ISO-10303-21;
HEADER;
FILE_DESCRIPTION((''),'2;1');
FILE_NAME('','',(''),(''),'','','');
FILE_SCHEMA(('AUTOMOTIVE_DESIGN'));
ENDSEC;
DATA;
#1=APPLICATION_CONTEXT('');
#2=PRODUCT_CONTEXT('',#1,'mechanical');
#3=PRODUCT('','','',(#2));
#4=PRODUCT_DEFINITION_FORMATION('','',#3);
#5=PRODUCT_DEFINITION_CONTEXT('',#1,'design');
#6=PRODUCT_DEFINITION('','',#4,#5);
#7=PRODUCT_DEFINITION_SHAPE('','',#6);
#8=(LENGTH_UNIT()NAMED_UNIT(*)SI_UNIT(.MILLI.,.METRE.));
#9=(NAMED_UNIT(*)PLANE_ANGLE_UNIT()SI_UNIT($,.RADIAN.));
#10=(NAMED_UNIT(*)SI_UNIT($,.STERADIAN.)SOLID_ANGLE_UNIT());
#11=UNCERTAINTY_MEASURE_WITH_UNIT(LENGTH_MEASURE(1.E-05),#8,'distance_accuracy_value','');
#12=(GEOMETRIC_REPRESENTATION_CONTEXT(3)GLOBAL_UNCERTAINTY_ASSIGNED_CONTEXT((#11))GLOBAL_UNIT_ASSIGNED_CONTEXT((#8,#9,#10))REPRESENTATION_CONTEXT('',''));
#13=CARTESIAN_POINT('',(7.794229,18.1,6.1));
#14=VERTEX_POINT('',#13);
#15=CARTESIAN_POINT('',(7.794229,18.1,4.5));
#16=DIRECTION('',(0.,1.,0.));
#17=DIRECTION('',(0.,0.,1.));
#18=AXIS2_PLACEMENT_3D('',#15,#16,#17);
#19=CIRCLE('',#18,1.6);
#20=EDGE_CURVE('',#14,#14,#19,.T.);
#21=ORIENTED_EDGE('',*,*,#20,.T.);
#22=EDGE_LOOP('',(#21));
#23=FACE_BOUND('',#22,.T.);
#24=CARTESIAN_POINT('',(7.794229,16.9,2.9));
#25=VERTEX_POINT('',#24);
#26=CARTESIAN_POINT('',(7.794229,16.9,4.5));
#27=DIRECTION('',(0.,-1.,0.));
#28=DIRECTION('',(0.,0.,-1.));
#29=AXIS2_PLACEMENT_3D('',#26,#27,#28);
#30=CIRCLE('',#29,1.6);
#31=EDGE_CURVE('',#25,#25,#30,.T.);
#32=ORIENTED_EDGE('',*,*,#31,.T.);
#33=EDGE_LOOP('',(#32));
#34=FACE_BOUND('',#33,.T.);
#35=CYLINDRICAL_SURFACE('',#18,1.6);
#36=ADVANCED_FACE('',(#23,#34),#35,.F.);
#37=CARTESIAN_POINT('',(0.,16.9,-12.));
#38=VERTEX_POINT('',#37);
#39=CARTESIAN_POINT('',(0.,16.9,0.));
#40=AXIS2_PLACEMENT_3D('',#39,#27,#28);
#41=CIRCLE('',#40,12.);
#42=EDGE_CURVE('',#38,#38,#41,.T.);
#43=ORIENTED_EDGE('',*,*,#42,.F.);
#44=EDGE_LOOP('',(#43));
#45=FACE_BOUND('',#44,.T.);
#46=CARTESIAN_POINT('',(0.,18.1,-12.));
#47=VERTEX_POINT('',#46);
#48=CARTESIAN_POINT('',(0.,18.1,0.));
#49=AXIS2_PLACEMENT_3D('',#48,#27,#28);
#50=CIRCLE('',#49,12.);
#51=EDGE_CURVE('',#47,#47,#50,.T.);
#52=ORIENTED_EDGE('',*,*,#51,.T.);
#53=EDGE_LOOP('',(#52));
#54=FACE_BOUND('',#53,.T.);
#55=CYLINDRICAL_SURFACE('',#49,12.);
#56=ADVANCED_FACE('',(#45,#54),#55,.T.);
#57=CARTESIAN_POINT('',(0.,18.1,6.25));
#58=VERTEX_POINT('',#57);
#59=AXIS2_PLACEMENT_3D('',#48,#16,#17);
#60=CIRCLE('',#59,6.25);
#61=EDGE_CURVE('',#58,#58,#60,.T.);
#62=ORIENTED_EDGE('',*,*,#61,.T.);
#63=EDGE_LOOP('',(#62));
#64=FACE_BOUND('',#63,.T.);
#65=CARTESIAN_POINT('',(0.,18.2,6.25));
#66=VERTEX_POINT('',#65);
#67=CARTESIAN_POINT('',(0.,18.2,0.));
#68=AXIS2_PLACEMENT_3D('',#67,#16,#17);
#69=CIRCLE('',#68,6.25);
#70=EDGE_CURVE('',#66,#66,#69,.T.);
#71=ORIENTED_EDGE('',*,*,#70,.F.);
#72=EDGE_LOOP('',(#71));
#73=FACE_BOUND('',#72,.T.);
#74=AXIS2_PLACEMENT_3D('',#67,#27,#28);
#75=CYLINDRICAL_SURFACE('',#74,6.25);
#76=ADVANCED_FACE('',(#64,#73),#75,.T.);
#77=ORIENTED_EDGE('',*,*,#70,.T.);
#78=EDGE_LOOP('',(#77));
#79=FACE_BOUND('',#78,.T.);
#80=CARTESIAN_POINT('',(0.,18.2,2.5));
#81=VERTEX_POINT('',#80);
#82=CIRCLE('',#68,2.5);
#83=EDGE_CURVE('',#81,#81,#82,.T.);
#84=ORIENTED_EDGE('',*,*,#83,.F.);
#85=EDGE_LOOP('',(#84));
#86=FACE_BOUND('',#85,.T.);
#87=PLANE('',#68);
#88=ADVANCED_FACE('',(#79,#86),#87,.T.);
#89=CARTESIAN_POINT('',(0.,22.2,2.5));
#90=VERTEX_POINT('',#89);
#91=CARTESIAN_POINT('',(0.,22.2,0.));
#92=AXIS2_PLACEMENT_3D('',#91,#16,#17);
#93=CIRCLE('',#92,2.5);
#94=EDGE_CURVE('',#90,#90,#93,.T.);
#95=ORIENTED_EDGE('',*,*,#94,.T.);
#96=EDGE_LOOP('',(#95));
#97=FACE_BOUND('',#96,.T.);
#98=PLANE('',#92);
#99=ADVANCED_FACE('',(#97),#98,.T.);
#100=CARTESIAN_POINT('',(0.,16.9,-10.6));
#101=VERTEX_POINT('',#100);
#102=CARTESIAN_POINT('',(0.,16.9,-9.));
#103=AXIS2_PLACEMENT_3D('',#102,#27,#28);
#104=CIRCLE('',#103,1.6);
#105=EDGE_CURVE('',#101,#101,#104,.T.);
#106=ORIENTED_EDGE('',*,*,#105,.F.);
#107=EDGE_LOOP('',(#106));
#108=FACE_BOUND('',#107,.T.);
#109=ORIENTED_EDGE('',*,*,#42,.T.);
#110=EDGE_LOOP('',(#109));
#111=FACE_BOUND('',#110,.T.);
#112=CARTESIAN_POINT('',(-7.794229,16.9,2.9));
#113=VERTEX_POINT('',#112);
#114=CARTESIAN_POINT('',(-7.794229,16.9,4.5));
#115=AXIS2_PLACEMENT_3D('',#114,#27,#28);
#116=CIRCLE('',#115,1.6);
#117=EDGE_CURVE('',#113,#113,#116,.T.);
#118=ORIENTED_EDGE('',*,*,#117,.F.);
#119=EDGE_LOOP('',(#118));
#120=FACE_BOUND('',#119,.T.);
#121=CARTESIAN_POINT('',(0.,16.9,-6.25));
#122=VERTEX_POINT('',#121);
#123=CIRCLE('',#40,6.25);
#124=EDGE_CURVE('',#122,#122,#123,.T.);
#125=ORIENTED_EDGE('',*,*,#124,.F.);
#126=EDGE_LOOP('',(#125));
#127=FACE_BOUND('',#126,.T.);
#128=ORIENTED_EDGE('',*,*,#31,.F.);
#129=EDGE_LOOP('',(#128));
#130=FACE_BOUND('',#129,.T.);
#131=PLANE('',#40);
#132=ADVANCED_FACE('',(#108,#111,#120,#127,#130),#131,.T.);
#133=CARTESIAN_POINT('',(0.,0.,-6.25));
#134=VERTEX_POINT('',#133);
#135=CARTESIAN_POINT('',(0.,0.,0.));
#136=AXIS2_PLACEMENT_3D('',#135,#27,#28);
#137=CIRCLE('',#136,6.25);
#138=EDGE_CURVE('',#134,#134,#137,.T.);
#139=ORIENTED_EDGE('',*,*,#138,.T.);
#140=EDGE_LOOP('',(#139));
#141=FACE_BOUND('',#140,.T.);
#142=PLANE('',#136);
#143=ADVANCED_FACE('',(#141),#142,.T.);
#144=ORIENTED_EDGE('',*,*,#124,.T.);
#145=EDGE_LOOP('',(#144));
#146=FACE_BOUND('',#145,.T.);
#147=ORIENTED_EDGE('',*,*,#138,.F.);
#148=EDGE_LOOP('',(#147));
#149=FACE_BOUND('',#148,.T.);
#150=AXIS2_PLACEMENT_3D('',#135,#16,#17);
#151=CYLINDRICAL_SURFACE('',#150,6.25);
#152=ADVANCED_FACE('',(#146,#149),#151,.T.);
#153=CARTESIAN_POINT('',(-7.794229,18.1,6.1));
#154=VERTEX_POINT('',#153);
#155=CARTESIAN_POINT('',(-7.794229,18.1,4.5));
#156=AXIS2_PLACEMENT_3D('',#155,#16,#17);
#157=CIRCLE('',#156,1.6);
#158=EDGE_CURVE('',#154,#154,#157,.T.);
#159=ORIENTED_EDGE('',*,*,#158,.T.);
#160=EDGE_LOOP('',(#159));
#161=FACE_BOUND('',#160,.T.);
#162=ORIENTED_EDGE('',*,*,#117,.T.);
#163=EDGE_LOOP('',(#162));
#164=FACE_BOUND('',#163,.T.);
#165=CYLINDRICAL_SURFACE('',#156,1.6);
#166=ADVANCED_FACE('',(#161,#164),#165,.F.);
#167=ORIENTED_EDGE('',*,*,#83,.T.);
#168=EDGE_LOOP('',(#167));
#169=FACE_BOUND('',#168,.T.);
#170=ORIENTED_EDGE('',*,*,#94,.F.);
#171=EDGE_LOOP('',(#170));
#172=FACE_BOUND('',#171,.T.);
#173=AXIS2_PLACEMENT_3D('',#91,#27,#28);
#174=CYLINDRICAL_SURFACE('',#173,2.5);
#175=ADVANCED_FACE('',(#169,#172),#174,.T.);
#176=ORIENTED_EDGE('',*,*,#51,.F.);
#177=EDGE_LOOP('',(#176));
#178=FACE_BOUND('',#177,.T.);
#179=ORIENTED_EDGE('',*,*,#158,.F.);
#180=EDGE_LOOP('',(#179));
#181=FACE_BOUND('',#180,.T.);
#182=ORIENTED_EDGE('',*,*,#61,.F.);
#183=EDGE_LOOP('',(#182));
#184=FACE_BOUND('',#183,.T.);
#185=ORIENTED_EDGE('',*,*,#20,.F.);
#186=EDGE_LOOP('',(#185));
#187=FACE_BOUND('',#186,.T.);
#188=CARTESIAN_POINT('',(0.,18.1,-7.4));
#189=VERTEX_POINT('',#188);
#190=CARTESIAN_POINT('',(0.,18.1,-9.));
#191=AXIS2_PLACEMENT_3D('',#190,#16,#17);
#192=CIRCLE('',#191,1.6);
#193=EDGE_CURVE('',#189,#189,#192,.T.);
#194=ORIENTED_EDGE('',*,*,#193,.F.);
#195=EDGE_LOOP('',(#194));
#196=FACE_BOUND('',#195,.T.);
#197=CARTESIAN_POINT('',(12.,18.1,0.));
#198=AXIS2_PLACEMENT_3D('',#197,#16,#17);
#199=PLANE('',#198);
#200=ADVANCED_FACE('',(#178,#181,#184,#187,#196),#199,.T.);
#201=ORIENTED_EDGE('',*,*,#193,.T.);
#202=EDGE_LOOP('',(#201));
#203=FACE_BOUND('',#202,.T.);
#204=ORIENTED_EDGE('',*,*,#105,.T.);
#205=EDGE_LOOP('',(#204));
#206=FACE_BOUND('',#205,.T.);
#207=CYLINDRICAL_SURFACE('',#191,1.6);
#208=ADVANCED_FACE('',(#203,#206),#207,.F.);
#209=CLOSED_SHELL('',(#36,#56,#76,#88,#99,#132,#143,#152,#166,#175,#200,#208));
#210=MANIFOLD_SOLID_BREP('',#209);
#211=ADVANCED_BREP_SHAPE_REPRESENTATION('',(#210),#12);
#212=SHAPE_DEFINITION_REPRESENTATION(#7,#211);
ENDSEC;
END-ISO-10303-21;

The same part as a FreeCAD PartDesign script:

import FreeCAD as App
import Part
import Sketcher

V = App.Vector
Q = App.Units.Quantity

doc = App.newDocument("Part")
body = doc.addObject("PartDesign::Body", "Body")

sketch1 = body.newObject("Sketcher::SketchObject", "Sketch")
sketch1.AttachmentSupport = (doc.getObject("XY_Plane"), [""])
sketch1.MapMode = "FlatFace"
sketch1.addGeometry(Part.LineSegment(V(0, 18.1, 0), V(0, 16.9, 0)), False)
sketch1.addGeometry(Part.LineSegment(V(0, 16.9, 0), V(12, 16.9, 0)), False)
sketch1.addGeometry(Part.LineSegment(V(12, 16.9, 0), V(12, 18.1, 0)), False)
sketch1.addGeometry(Part.LineSegment(V(12, 18.1, 0), V(0, 18.1, 0)), False)
sketch1.addConstraint(Sketcher.Constraint("Coincident", 0, 2, 1, 1))
sketch1.addConstraint(Sketcher.Constraint("Coincident", 1, 2, 2, 1))
sketch1.addConstraint(Sketcher.Constraint("Coincident", 2, 2, 3, 1))
sketch1.addConstraint(Sketcher.Constraint("Coincident", 3, 2, 0, 1))
sketch1.addConstraint(Sketcher.Constraint("Vertical", 0))
sketch1.addConstraint(Sketcher.Constraint("Horizontal", 1))
sketch1.addConstraint(Sketcher.Constraint("Vertical", 2))
sketch1.addConstraint(Sketcher.Constraint("Horizontal", 3))
sketch1.addConstraint(Sketcher.Constraint("PointOnObject", 0, 2, -2))
sketch1.addConstraint(Sketcher.Constraint("DistanceX", 1, 1, 1, 2, Q("12 mm")))
sketch1.addConstraint(Sketcher.Constraint("DistanceY", 0, 2, 0, 1, Q("1.2 mm")))
sketch1.addConstraint(Sketcher.Constraint("DistanceY", -1, 1, 0, 2, Q("16.9 mm")))
revolution = body.newObject("PartDesign::Revolution", "Revolution")
revolution.Profile = sketch1
revolution.ReferenceAxis = (sketch1, ["V_Axis"])
revolution.Angle = 360

sketch2 = body.newObject("Sketcher::SketchObject", "Sketch001")
sketch2.AttachmentSupport = (doc.getObject("XZ_Plane"), [""])
sketch2.MapMode = "FlatFace"
sketch2.AttachmentOffset = App.Placement(V(0, 0, -18.1), App.Rotation())
sketch2.addGeometry(Part.Circle(V(0, 0, 0), V(0, 0, 1), 6), False)
sketch2.addConstraint(Sketcher.Constraint("Coincident", 0, 3, -1, 1))
sketch2.addConstraint(Sketcher.Constraint("Diameter", 0, Q("12.5 mm")))
pad1 = body.newObject("PartDesign::Pad", "Pad")
pad1.Profile = sketch2
pad1.Length = 0.1
pad1.Reversed = True

sketch3 = body.newObject("Sketcher::SketchObject", "Sketch002")
sketch3.AttachmentSupport = (doc.getObject("XZ_Plane"), [""])
sketch3.MapMode = "FlatFace"
sketch3.AttachmentOffset = App.Placement(V(0, 0, -18.2), App.Rotation())
sketch3.addGeometry(Part.Circle(V(0, 0, 0), V(0, 0, 1), 2.5), False)
sketch3.addConstraint(Sketcher.Constraint("Coincident", 0, 3, -1, 1))
sketch3.addConstraint(Sketcher.Constraint("Diameter", 0, Q("5 mm")))
pad2 = body.newObject("PartDesign::Pad", "Pad001")
pad2.Profile = sketch3
pad2.Length = 4
pad2.Reversed = True

sketch4 = body.newObject("Sketcher::SketchObject", "Sketch003")
sketch4.AttachmentSupport = (doc.getObject("XZ_Plane"), [""])
sketch4.MapMode = "FlatFace"
sketch4.addGeometry(Part.Circle(V(0, 0, 0), V(0, 0, 1), 6), False)
sketch4.addConstraint(Sketcher.Constraint("Coincident", 0, 3, -1, 1))
sketch4.addConstraint(Sketcher.Constraint("Diameter", 0, Q("12.5 mm")))
pad3 = body.newObject("PartDesign::Pad", "Pad002")
pad3.Profile = sketch4
pad3.Length = 16.9
pad3.Reversed = True

sketch5 = body.newObject("Sketcher::SketchObject", "Sketch004")
sketch5.AttachmentSupport = (doc.getObject("XZ_Plane"), [""])
sketch5.MapMode = "FlatFace"
sketch5.AttachmentOffset = App.Placement(V(0, 0, -18.1), App.Rotation())
sketch5.addGeometry(Part.Circle(V(-7.8, 4.5, 0), V(0, 0, 1), 1.6), False)
sketch5.addGeometry(Part.Circle(V(7.8, 4.5, 0), V(0, 0, 1), 1.6), False)
sketch5.addGeometry(Part.Circle(V(0, -9, 0), V(0, 0, 1), 1.6), False)
sketch5.addConstraint(Sketcher.Constraint("Equal", 0, 1))
sketch5.addConstraint(Sketcher.Constraint("Equal", 1, 2))
sketch5.addConstraint(Sketcher.Constraint("Symmetric", 0, 3, 1, 3, -2))
sketch5.addConstraint(Sketcher.Constraint("PointOnObject", 2, 3, -2))
sketch5.addConstraint(Sketcher.Constraint("Diameter", 0, Q("3.2 mm")))
sketch5.addConstraint(Sketcher.Constraint("DistanceY", 2, 3, -1, 1, Q("9 mm")))
sketch5.addConstraint(Sketcher.Constraint("DistanceY", -1, 1, 0, 3, Q("4.5 mm")))
sketch5.addConstraint(Sketcher.Constraint("DistanceX", 0, 3, -1, 1, Q("7.794229 mm")))
doc.recompute()
hole = body.newObject("PartDesign::Hole", "Hole")
hole.Profile = sketch5
hole.ThreadType = "None"
hole.Diameter = 3.2
hole.DepthType = "Dimension"
hole.Depth = 18.1
hole.DrillPoint = "Flat"
hole.Reversed = True

doc.recompute()
